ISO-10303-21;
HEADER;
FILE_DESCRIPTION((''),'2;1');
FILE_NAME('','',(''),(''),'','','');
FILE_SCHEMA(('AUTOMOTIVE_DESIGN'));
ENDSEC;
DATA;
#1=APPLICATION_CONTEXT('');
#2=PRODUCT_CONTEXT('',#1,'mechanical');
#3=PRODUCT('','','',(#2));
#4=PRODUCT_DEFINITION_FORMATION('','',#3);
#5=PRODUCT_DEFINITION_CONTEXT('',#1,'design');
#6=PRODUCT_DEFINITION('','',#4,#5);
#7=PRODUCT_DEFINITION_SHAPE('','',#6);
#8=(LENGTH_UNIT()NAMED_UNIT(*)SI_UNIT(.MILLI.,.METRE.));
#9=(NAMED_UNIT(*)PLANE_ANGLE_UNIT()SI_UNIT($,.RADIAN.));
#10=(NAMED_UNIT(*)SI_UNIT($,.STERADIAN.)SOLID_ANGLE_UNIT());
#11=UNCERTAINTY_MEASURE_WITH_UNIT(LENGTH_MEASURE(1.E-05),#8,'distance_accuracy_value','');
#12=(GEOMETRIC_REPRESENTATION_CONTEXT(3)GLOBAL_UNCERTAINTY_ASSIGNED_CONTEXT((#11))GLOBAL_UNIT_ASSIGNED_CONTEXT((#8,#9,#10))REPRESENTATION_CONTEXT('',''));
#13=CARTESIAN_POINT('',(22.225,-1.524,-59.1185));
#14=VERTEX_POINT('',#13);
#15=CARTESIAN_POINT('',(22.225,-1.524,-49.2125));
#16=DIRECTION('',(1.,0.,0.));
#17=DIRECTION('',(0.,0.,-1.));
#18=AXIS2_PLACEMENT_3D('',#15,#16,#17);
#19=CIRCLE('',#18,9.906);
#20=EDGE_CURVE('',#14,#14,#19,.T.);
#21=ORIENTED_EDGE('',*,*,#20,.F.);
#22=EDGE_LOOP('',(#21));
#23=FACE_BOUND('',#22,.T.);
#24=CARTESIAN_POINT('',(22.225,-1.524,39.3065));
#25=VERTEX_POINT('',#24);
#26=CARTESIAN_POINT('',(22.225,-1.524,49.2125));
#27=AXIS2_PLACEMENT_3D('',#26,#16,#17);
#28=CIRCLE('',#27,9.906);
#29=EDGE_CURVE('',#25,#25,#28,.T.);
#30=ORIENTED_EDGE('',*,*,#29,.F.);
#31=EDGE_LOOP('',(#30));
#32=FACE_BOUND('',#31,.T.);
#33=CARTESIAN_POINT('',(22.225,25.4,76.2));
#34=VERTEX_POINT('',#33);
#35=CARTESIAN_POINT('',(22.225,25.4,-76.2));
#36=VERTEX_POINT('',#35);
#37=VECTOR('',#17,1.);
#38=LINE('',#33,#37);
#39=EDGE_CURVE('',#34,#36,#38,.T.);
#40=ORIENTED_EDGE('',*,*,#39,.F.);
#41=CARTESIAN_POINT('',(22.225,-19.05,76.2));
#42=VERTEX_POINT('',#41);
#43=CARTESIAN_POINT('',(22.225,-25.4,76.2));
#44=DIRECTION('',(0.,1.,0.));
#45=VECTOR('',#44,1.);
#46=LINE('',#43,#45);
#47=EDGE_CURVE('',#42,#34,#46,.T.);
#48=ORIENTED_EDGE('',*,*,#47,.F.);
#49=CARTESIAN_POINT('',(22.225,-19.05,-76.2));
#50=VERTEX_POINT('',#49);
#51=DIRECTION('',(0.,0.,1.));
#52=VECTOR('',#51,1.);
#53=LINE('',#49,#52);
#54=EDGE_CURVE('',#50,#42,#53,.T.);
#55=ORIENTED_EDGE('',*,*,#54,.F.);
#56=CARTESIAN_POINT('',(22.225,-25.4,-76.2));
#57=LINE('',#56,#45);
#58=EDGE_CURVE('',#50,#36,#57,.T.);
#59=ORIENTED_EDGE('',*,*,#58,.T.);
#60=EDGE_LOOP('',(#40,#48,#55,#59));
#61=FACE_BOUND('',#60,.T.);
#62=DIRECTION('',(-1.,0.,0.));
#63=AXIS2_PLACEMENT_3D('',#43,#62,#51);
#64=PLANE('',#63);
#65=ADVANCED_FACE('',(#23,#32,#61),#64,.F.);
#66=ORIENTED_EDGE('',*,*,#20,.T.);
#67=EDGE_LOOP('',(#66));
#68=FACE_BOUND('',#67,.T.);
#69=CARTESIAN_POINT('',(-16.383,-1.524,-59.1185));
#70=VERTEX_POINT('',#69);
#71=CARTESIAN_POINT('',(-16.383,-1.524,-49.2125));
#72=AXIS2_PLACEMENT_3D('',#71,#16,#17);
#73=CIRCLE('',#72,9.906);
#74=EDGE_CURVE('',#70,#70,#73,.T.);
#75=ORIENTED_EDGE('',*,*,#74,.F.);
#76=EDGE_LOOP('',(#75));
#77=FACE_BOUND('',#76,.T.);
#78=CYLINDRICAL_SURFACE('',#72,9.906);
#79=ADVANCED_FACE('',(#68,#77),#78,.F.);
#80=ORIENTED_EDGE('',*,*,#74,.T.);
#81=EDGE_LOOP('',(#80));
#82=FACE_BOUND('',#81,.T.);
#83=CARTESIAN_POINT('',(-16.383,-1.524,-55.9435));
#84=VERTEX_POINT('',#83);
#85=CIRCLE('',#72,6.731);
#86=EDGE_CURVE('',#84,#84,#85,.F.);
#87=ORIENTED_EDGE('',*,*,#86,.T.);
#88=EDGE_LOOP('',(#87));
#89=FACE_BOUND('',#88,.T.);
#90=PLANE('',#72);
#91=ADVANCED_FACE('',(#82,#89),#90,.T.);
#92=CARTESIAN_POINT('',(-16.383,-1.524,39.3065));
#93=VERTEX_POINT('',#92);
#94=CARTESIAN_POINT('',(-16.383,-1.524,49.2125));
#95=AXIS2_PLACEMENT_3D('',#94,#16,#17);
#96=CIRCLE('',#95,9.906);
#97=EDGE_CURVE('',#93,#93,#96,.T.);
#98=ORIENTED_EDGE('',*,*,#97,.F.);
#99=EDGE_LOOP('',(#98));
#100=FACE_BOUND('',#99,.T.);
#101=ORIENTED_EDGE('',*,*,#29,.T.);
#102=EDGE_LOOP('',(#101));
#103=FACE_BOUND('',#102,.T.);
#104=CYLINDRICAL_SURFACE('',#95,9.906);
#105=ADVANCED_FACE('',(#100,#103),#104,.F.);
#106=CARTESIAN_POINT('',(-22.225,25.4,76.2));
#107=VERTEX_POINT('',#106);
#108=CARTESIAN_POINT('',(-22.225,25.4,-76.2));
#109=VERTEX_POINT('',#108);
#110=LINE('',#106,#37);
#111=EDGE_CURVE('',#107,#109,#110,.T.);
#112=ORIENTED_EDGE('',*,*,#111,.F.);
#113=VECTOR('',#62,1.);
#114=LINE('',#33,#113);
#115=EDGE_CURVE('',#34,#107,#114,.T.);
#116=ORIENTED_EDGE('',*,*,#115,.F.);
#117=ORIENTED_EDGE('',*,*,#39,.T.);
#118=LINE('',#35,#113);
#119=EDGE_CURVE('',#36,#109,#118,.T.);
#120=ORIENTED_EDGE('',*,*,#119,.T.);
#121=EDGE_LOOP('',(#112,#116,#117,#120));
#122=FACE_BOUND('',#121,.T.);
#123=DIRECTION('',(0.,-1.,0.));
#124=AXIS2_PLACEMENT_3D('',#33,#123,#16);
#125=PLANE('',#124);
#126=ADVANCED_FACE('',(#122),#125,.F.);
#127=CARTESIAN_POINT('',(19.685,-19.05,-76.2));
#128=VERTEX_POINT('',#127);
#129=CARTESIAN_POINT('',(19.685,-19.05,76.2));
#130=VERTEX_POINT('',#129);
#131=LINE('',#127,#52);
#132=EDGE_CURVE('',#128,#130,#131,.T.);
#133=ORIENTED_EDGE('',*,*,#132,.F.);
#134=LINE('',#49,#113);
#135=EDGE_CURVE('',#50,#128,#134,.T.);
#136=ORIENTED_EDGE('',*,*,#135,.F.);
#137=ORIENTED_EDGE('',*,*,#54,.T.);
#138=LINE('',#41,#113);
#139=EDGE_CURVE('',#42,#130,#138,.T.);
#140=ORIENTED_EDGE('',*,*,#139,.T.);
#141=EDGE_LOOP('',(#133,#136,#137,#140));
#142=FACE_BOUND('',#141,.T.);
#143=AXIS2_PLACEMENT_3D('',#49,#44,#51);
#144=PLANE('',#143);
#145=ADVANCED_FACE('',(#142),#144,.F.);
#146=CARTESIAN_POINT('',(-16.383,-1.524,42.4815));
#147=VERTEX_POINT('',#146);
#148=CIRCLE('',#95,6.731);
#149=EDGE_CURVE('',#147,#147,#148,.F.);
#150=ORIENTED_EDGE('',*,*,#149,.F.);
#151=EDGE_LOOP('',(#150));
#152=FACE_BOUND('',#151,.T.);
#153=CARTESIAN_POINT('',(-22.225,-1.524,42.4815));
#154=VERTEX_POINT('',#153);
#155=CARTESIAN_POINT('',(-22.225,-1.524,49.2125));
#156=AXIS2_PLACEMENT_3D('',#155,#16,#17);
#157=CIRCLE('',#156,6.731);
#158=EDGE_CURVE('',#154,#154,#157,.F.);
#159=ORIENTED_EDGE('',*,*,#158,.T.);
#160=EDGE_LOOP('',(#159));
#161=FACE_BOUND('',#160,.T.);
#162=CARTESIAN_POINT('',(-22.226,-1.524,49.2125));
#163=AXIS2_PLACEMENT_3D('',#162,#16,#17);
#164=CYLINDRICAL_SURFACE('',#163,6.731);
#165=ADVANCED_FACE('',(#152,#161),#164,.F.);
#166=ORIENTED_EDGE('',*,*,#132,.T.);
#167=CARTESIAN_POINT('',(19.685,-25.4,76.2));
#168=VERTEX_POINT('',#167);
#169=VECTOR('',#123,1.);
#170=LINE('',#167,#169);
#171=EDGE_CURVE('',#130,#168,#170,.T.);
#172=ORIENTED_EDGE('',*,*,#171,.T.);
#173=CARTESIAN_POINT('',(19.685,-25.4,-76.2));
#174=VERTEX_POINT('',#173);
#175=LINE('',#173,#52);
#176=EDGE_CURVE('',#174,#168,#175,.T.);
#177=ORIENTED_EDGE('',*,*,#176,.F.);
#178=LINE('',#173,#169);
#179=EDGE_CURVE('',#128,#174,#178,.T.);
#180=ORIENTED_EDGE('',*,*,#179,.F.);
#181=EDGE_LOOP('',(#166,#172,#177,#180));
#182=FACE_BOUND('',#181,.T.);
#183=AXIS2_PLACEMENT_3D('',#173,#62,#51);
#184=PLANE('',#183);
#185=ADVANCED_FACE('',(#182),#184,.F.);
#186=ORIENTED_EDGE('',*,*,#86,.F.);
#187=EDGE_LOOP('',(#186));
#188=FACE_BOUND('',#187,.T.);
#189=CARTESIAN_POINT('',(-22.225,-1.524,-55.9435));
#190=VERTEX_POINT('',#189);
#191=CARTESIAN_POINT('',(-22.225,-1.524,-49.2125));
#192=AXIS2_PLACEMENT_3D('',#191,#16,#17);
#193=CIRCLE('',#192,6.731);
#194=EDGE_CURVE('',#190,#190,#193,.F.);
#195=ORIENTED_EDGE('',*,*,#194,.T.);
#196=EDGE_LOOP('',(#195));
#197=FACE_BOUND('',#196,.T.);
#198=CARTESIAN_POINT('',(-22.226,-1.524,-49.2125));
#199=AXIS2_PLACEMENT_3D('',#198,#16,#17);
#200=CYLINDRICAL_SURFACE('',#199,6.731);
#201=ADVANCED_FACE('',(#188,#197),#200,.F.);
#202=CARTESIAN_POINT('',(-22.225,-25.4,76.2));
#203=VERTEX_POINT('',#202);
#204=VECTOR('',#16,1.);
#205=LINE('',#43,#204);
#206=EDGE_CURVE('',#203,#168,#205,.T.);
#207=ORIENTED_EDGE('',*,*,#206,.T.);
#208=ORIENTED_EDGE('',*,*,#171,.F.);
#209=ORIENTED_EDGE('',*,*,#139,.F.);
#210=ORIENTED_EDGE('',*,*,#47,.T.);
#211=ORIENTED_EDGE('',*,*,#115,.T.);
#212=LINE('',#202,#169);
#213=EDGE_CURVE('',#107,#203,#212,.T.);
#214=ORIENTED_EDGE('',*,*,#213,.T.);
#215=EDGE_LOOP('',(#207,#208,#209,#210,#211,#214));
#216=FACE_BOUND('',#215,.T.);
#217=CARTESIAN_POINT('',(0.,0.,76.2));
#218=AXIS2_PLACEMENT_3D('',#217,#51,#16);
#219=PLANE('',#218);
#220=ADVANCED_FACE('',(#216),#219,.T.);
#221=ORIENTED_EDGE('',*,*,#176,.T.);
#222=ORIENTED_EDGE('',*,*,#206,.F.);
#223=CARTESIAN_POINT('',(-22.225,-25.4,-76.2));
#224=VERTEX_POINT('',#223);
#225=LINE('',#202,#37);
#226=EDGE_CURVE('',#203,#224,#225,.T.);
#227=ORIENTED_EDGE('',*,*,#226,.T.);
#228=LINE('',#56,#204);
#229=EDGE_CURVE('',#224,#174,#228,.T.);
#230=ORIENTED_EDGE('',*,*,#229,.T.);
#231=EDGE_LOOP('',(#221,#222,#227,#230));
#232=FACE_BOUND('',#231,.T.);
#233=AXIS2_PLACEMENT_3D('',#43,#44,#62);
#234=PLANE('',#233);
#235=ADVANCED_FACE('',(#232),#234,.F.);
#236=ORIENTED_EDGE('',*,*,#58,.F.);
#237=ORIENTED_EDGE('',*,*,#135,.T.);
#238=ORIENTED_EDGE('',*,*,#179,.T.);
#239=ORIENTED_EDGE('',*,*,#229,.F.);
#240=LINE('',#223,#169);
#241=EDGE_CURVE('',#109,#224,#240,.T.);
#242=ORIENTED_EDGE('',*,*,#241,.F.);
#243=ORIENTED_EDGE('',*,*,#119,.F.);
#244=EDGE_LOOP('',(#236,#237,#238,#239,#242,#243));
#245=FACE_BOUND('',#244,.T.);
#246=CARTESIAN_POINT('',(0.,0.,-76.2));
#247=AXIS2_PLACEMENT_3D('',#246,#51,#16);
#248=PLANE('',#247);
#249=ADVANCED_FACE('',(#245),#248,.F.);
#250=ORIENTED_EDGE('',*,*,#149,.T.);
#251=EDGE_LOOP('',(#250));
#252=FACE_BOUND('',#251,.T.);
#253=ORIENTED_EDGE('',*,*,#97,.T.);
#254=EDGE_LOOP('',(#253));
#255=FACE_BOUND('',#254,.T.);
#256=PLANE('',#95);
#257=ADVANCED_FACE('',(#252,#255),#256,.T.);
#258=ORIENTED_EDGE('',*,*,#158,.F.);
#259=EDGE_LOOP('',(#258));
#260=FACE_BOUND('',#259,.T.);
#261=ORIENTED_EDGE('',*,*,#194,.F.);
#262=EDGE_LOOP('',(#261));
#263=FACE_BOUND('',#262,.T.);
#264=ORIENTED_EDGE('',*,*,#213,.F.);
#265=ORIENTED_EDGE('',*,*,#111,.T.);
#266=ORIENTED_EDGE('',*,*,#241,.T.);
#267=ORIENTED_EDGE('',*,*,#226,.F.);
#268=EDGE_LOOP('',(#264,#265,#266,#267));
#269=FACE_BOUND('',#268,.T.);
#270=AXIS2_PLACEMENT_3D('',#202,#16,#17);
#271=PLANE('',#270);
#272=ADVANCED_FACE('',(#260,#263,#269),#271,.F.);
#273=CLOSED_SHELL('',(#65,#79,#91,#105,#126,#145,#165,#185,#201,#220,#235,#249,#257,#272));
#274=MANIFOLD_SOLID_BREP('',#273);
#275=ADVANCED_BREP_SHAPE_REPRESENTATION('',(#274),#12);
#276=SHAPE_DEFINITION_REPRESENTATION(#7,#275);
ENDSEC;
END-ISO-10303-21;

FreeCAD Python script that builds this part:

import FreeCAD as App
import Part
import Sketcher
Q = App.Units.Quantity

doc = App.newDocument("Part")
body = doc.addObject("PartDesign::Body", "Body")

sketch1 = body.newObject("Sketcher::SketchObject", "Sketch")
sketch1.AttachmentSupport = (doc.getObject("XY_Plane"), [""])
sketch1.MapMode = "FlatFace"
sketch1.addGeometry([
    Part.LineSegment(App.Vector(-22, 25, 0), App.Vector(-22, -25, 0)),
    Part.LineSegment(App.Vector(-22, -25, 0), App.Vector(22, -25, 0)),
    Part.LineSegment(App.Vector(22, -25, 0), App.Vector(22, 25, 0)),
    Part.LineSegment(App.Vector(22, 25, 0), App.Vector(-22, 25, 0)),
], False)
sketch1.addConstraint([
    Sketcher.Constraint("Coincident", 0, 2, 1, 1),
    Sketcher.Constraint("Coincident", 1, 2, 2, 1),
    Sketcher.Constraint("Coincident", 2, 2, 3, 1),
    Sketcher.Constraint("Coincident", 3, 2, 0, 1),
    Sketcher.Constraint("Vertical", 0),
    Sketcher.Constraint("Horizontal", 1),
    Sketcher.Constraint("Vertical", 2),
    Sketcher.Constraint("Horizontal", 3),
    Sketcher.Constraint("Symmetric", 0, 2, 2, 2, -1, 1),
    Sketcher.Constraint("DistanceY", 0, 2, 0, 1, Q("2 in")),
    Sketcher.Constraint("DistanceX", 1, 1, 1, 2, Q("1.75 in")),
])
pad1 = body.newObject("PartDesign::Pad", "Pad")
pad1.Profile = sketch1
pad1.Length = Q("6 in")
pad1.Midplane = True

sketch2 = body.newObject("Sketcher::SketchObject", "Sketch001")
sketch2.AttachmentSupport = (doc.getObject("YZ_Plane"), [""])
sketch2.MapMode = "FlatFace"
sketch2.AttachmentOffset = App.Placement(App.Vector(0, 0, 0.875 * 25.4), App.Rotation())
sketch2.addGeometry(Part.Circle(App.Vector(-2, 49, 0), App.Vector(0, 0, 1), 7), False)
sketch2.addConstraint([
    Sketcher.Constraint("Diameter", 0, Q("0.53 in")),
    Sketcher.Constraint("DistanceX", 0, 3, -1, 1, Q("0.06 in")),
    Sketcher.Constraint("DistanceY", -1, 1, 0, 3, Q("1.9375 in")),
])
pocket1 = body.newObject("PartDesign::Pocket", "Pocket")
pocket1.Profile = sketch2
pocket1.Type = "UpToFirst"

sketch3 = body.newObject("Sketcher::SketchObject", "Sketch002")
sketch3.AttachmentSupport = (doc.getObject("YZ_Plane"), [""])
sketch3.MapMode = "FlatFace"
sketch3.AttachmentOffset = App.Placement(App.Vector(0, 0, 0.875 * 25.4), App.Rotation())
sketch3.addGeometry(Part.Circle(App.Vector(-2, -49, 0), App.Vector(0, 0, 1), 7), False)
sketch3.addConstraint([
    Sketcher.Constraint("Diameter", 0, Q("0.53 in")),
    Sketcher.Constraint("DistanceX", 0, 3, -1, 1, Q("0.06 in")),
    Sketcher.Constraint("DistanceY", 0, 3, -1, 1, Q("1.9375 in")),
])
pocket2 = body.newObject("PartDesign::Pocket", "Pocket001")
pocket2.Profile = sketch3
pocket2.Type = "UpToFirst"

sketch4 = body.newObject("Sketcher::SketchObject", "Sketch003")
sketch4.AttachmentSupport = (doc.getObject("YZ_Plane"), [""])
sketch4.MapMode = "FlatFace"
sketch4.AttachmentOffset = App.Placement(App.Vector(0, 0, 0.875 * 25.4), App.Rotation())
sketch4.addGeometry([
    Part.Circle(App.Vector(-2, 49, 0), App.Vector(0, 0, 1), 10),
    Part.Circle(App.Vector(-2, -49, 0), App.Vector(0, 0, 1), 10),
], False)
sketch4.addConstraint([
    Sketcher.Constraint("Equal", 0, 1),
    Sketcher.Constraint("Symmetric", 0, 3, 1, 3, -1),
    Sketcher.Constraint("Diameter", 0, Q("0.78 in")),
    Sketcher.Constraint("DistanceX", 0, 3, -1, 1, Q("0.06 in")),
    Sketcher.Constraint("DistanceY", -1, 1, 0, 3, Q("1.9375 in")),
])
pocket3 = body.newObject("PartDesign::Pocket", "Pocket002")
pocket3.Profile = sketch4
pocket3.Length = Q("1.52 in")

sketch5 = body.newObject("Sketcher::SketchObject", "Sketch004")
sketch5.AttachmentSupport = (doc.getObject("XY_Plane"), [""])
sketch5.MapMode = "FlatFace"
sketch5.AttachmentOffset = App.Placement(App.Vector(0, 0, 3 * 25.4), App.Rotation())
sketch5.addGeometry([
    Part.LineSegment(App.Vector(19.7, -19.1, 0), App.Vector(19.7, -25.4, 0)),
    Part.LineSegment(App.Vector(19.7, -25.4, 0), App.Vector(22.2, -25.4, 0)),
    Part.LineSegment(App.Vector(22.2, -25.4, 0), App.Vector(22.2, -19.1, 0)),
    Part.LineSegment(App.Vector(22.2, -19.1, 0), App.Vector(19.7, -19.1, 0)),
], False)
sketch5.addConstraint([
    Sketcher.Constraint("Coincident", 0, 2, 1, 1),
    Sketcher.Constraint("Coincident", 1, 2, 2, 1),
    Sketcher.Constraint("Coincident", 2, 2, 3, 1),
    Sketcher.Constraint("Coincident", 3, 2, 0, 1),
    Sketcher.Constraint("Vertical", 0),
    Sketcher.Constraint("Horizontal", 1),
    Sketcher.Constraint("Vertical", 2),
    Sketcher.Constraint("Horizontal", 3),
    Sketcher.Constraint("DistanceX", 1, 1, 1, 2, Q("0.1 in")),
    Sketcher.Constraint("DistanceY", 0, 2, -1, 1, Q("1 in")),
    Sketcher.Constraint("DistanceY", 0, 2, 0, 1, Q("0.25 in")),
    Sketcher.Constraint("DistanceX", -1, 1, 0, 2, Q("0.775 in")),
])
pocket4 = body.newObject("PartDesign::Pocket", "Pocket003")
pocket4.Profile = sketch5
pocket4.Type = "ThroughAll"

doc.recompute()
